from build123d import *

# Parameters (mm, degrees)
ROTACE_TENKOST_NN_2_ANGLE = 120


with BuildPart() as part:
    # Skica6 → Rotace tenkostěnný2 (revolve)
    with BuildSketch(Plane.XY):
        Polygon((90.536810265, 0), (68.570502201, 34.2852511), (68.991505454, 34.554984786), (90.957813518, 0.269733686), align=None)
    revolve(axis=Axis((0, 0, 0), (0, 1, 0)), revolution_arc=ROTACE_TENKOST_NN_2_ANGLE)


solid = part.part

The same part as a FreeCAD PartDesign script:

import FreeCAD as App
import Part
import Sketcher
from FreeCAD import Vector

doc = App.newDocument("Part")
params = doc.addObject("Spreadsheet::Sheet", "Params")
for row, (alias, value) in enumerate([
    ("sketch1_length", "0.5 mm"),
    ("revolution_angle", "120 deg"),
], start=1):
    params.set(f"A{row}", alias)
    params.set(f"B{row}", "=" + value)
    params.setAlias(f"B{row}", alias)

body = doc.addObject("PartDesign::Body", "Body")

sketch1 = body.newObject("Sketcher::SketchObject", "Sketch")
sketch1.AttachmentSupport = (doc.getObject("XY_Plane"), [""])
sketch1.MapMode = "FlatFace"
sketch1.addGeometry([
    Part.LineSegment(Vector(68.6, 34.3, 0), Vector(90.5, 0, 0)),
    Part.LineSegment(Vector(90.5, 0, 0), Vector(91, 0.3, 0)),
    Part.LineSegment(Vector(91, 0.3, 0), Vector(69, 34.6, 0)),
    Part.LineSegment(Vector(69, 34.6, 0), Vector(68.6, 34.3, 0)),
], False)
sketch1.addConstraint([
    Sketcher.Constraint("Coincident", 0, 2, 1, 1),
    Sketcher.Constraint("Coincident", 1, 2, 2, 1),
    Sketcher.Constraint("Coincident", 2, 2, 3, 1),
    Sketcher.Constraint("Coincident", 3, 2, 0, 1),
    Sketcher.Constraint("PointOnObject", 0, 2, -1),
    Sketcher.Constraint("Perpendicular", 0, 1),
    Sketcher.Constraint("Perpendicular", 1, 2),
    Sketcher.Constraint("Perpendicular", 2, 3),
    Sketcher.Constraint("Distance", 1, 0.5),
    Sketcher.Constraint("Distance", 0, 40.718511),
    Sketcher.Constraint("DistanceX", -1, 1, 0, 2, 90.53681),
    Sketcher.Constraint("DistanceY", -1, 1, 3, 2, 34.285251),
])
sketch1.setExpression("Constraints[8]", "Params.sketch1_length")
revolution = body.newObject("PartDesign::Revolution", "Revolution")
revolution.Profile = sketch1
revolution.ReferenceAxis = (sketch1, ["V_Axis"])
revolution.setExpression("Angle", "Params.revolution_angle")

doc.recompute()
